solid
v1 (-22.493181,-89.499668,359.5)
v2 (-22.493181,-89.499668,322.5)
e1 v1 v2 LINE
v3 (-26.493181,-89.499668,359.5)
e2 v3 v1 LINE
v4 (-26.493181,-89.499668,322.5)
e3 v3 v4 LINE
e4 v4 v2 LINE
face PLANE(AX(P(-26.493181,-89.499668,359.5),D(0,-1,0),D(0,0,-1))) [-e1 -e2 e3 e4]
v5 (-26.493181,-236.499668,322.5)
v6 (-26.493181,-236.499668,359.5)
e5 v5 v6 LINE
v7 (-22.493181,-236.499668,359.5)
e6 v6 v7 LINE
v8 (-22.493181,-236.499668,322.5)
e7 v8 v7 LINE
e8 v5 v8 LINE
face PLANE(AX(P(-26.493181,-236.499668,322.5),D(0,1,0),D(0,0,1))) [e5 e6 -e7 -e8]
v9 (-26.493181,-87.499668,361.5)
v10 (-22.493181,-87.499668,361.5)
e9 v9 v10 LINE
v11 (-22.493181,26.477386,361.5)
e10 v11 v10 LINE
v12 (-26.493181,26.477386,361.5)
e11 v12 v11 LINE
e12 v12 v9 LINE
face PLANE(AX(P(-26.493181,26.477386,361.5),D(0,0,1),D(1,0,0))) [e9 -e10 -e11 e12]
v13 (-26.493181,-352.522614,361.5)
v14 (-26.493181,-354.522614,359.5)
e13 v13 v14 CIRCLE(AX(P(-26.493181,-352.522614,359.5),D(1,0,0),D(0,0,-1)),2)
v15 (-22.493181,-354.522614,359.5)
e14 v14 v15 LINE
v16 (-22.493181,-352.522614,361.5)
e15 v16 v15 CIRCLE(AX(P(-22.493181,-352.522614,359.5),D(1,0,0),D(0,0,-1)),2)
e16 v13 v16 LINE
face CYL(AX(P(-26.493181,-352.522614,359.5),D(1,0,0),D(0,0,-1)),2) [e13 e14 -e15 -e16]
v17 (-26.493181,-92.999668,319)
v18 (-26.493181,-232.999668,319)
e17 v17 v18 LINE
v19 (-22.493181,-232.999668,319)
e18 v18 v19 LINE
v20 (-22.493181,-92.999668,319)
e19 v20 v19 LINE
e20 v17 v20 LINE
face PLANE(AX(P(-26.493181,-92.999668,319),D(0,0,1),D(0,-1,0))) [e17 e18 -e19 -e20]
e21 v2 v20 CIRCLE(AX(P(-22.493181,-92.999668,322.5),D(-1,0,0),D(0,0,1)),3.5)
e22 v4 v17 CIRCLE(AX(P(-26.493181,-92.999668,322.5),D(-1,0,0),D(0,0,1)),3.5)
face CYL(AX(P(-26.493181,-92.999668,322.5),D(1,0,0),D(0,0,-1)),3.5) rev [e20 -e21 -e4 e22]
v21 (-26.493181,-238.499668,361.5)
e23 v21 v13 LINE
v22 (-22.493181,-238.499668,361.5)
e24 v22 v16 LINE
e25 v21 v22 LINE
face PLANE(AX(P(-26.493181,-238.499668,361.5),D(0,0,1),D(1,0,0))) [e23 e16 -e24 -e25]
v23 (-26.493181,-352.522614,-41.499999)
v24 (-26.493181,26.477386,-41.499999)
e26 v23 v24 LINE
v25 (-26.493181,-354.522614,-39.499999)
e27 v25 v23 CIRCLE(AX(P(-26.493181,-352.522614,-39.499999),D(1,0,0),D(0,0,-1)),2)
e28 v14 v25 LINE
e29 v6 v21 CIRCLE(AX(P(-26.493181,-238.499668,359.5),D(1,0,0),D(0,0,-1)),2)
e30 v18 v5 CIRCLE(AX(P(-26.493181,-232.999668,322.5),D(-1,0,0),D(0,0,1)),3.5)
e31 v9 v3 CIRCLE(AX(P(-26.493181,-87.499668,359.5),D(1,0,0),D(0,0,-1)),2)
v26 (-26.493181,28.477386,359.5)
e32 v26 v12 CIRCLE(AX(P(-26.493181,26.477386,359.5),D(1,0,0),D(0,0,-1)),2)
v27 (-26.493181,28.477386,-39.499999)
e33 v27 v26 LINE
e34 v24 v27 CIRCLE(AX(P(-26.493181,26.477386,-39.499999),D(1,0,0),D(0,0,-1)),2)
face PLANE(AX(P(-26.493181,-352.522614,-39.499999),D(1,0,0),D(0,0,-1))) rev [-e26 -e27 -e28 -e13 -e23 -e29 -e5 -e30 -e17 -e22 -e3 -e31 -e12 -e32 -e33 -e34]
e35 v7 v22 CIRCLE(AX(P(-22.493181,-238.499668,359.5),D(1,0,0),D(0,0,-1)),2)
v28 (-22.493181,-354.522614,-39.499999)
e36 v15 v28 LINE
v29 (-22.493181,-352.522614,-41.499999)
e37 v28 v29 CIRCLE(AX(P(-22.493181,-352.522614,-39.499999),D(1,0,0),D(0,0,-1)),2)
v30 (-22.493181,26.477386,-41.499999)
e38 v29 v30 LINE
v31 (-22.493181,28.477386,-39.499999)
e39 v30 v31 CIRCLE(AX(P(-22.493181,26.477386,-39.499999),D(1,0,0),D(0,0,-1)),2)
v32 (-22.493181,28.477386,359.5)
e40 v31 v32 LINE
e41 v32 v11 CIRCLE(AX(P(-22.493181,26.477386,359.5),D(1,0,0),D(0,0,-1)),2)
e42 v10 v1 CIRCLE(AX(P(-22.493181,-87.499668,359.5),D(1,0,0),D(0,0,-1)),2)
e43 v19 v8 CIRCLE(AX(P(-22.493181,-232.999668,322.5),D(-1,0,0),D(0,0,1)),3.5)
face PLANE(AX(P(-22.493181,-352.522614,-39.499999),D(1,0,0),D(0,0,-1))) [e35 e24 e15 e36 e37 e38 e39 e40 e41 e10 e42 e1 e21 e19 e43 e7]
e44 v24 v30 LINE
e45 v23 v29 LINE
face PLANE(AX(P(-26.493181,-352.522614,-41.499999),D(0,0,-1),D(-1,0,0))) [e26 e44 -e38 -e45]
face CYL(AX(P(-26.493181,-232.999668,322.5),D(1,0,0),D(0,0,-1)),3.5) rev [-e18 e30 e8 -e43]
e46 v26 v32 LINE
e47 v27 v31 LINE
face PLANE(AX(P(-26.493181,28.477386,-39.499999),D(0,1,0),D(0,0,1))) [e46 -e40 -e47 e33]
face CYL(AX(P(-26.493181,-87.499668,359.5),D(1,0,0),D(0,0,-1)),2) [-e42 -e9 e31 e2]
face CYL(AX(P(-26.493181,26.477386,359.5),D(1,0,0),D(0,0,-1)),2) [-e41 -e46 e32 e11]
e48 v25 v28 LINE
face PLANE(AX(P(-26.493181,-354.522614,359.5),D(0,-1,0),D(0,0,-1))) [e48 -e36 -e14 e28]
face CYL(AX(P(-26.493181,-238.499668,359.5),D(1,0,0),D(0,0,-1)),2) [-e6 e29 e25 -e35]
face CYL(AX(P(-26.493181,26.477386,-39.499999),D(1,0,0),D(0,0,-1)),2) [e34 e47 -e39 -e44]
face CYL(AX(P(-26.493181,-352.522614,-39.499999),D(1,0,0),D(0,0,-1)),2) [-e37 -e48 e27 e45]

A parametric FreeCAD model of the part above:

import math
import FreeCAD as App
import Part
import Sketcher

V = App.Vector

doc = App.newDocument("Part")
body = doc.addObject("PartDesign::Body", "Body")

sketch1 = body.newObject("Sketcher::SketchObject", "Sketch")
sketch1.AttachmentSupport = (doc.getObject("YZ_Plane"), [""])
sketch1.MapMode = "FlatFace"
sketch1.AttachmentOffset = App.Placement(V(0, 0, -22.493181), App.Rotation())
sketch1.addGeometry([
    Part.LineSegment(V(-352.5, -41.5, 0), V(26.5, -41.5, 0)),
    Part.ArcOfCircle(Part.Circle(V(26.5, -39.5, 0), V(0, 0, 1), 2), math.radians(-90), math.radians(0)),
    Part.LineSegment(V(28.5, -39.5, 0), V(28.5, 359.5, 0)),
    Part.ArcOfCircle(Part.Circle(V(26.5, 359.5, 0), V(0, 0, 1), 2), math.radians(0), math.radians(90)),
    Part.LineSegment(V(26.5, 361.5, 0), V(-87.5, 361.5, 0)),
    Part.ArcOfCircle(Part.Circle(V(-87.5, 359.5, 0), V(0, 0, 1), 2), math.radians(90), math.radians(180)),
    Part.LineSegment(V(-89.5, 359.5, 0), V(-89.5, 322.5, 0)),
    Part.ArcOfCircle(Part.Circle(V(-93, 322.5, 0), V(0, 0, 1), 3.5), math.radians(-90), math.radians(0)),
    Part.LineSegment(V(-93, 319, 0), V(-233, 319, 0)),
    Part.ArcOfCircle(Part.Circle(V(-233, 322.5, 0), V(0, 0, 1), 3.5), math.radians(-180), math.radians(-90)),
    Part.LineSegment(V(-236.5, 322.5, 0), V(-236.5, 359.5, 0)),
    Part.ArcOfCircle(Part.Circle(V(-238.5, 359.5, 0), V(0, 0, 1), 2), math.radians(0), math.radians(90)),
    Part.LineSegment(V(-238.5, 361.5, 0), V(-352.5, 361.5, 0)),
    Part.ArcOfCircle(Part.Circle(V(-352.5, 359.5, 0), V(0, 0, 1), 2), math.radians(90), math.radians(180)),
    Part.LineSegment(V(-354.5, 359.5, 0), V(-354.5, -39.5, 0)),
    Part.ArcOfCircle(Part.Circle(V(-352.5, -39.5, 0), V(0, 0, 1), 2), math.radians(-180), math.radians(-90)),
], False)
sketch1.addConstraint([
    Sketcher.Constraint("Tangent", 0, 2, 1, 1),
    Sketcher.Constraint("Tangent", 1, 2, 2, 1),
    Sketcher.Constraint("Tangent", 2, 2, 3, 1),
    Sketcher.Constraint("Tangent", 3, 2, 4, 1),
    Sketcher.Constraint("Tangent", 4, 2, 5, 1),
    Sketcher.Constraint("Tangent", 5, 2, 6, 1),
    Sketcher.Constraint("Tangent", 6, 2, 7, 2),
    Sketcher.Constraint("Tangent", 7, 1, 8, 1),
    Sketcher.Constraint("Tangent", 8, 2, 9, 2),
    Sketcher.Constraint("Tangent", 9, 1, 10, 1),
    Sketcher.Constraint("Tangent", 10, 2, 11, 1),
    Sketcher.Constraint("Tangent", 11, 2, 12, 1),
    Sketcher.Constraint("Tangent", 12, 2, 13, 1),
    Sketcher.Constraint("Tangent", 13, 2, 14, 1),
    Sketcher.Constraint("Tangent", 14, 2, 15, 1),
    Sketcher.Constraint("Tangent", 15, 2, 0, 1),
    Sketcher.Constraint("Horizontal", 0),
    Sketcher.Constraint("Vertical", 2),
    Sketcher.Constraint("Horizontal", 4),
    Sketcher.Constraint("Vertical", 6),
    Sketcher.Constraint("Horizontal", 8),
    Sketcher.Constraint("Vertical", 10),
    Sketcher.Constraint("Horizontal", 12),
    Sketcher.Constraint("Vertical", 14),
    Sketcher.Constraint("Equal", 1, 3),
    Sketcher.Constraint("Equal", 3, 5),
    Sketcher.Constraint("Equal", 7, 9),
    Sketcher.Constraint("Equal", 5, 11),
    Sketcher.Constraint("Equal", 11, 13),
    Sketcher.Constraint("Equal", 13, 15),
    Sketcher.Constraint("Horizontal", 5, 3, 11, 3),
    Sketcher.Constraint("Radius", 1, 2.0),
    Sketcher.Constraint("Radius", 7, 3.5),
    Sketcher.Constraint("DistanceX", 0, 1, 0, 2, 379.0),
    Sketcher.Constraint("DistanceX", 8, 2, 8, 1, 140.0),
    Sketcher.Constraint("DistanceY", 2, 1, 2, 2, 399.0),
    Sketcher.Constraint("DistanceY", 6, 2, 6, 1, 37.0),
    Sketcher.Constraint("DistanceY", -1, 1, 7, 1, 319.0),
    Sketcher.Constraint("DistanceX", 4, 2, 4, 1, 113.977054),
    Sketcher.Constraint("DistanceX", -1, 1, 1, 3, 26.477386),
])
pad1 = body.newObject("PartDesign::Pad", "Pad")
pad1.Profile = sketch1
pad1.Length = 4
pad1.Reversed = True

doc.recompute()
